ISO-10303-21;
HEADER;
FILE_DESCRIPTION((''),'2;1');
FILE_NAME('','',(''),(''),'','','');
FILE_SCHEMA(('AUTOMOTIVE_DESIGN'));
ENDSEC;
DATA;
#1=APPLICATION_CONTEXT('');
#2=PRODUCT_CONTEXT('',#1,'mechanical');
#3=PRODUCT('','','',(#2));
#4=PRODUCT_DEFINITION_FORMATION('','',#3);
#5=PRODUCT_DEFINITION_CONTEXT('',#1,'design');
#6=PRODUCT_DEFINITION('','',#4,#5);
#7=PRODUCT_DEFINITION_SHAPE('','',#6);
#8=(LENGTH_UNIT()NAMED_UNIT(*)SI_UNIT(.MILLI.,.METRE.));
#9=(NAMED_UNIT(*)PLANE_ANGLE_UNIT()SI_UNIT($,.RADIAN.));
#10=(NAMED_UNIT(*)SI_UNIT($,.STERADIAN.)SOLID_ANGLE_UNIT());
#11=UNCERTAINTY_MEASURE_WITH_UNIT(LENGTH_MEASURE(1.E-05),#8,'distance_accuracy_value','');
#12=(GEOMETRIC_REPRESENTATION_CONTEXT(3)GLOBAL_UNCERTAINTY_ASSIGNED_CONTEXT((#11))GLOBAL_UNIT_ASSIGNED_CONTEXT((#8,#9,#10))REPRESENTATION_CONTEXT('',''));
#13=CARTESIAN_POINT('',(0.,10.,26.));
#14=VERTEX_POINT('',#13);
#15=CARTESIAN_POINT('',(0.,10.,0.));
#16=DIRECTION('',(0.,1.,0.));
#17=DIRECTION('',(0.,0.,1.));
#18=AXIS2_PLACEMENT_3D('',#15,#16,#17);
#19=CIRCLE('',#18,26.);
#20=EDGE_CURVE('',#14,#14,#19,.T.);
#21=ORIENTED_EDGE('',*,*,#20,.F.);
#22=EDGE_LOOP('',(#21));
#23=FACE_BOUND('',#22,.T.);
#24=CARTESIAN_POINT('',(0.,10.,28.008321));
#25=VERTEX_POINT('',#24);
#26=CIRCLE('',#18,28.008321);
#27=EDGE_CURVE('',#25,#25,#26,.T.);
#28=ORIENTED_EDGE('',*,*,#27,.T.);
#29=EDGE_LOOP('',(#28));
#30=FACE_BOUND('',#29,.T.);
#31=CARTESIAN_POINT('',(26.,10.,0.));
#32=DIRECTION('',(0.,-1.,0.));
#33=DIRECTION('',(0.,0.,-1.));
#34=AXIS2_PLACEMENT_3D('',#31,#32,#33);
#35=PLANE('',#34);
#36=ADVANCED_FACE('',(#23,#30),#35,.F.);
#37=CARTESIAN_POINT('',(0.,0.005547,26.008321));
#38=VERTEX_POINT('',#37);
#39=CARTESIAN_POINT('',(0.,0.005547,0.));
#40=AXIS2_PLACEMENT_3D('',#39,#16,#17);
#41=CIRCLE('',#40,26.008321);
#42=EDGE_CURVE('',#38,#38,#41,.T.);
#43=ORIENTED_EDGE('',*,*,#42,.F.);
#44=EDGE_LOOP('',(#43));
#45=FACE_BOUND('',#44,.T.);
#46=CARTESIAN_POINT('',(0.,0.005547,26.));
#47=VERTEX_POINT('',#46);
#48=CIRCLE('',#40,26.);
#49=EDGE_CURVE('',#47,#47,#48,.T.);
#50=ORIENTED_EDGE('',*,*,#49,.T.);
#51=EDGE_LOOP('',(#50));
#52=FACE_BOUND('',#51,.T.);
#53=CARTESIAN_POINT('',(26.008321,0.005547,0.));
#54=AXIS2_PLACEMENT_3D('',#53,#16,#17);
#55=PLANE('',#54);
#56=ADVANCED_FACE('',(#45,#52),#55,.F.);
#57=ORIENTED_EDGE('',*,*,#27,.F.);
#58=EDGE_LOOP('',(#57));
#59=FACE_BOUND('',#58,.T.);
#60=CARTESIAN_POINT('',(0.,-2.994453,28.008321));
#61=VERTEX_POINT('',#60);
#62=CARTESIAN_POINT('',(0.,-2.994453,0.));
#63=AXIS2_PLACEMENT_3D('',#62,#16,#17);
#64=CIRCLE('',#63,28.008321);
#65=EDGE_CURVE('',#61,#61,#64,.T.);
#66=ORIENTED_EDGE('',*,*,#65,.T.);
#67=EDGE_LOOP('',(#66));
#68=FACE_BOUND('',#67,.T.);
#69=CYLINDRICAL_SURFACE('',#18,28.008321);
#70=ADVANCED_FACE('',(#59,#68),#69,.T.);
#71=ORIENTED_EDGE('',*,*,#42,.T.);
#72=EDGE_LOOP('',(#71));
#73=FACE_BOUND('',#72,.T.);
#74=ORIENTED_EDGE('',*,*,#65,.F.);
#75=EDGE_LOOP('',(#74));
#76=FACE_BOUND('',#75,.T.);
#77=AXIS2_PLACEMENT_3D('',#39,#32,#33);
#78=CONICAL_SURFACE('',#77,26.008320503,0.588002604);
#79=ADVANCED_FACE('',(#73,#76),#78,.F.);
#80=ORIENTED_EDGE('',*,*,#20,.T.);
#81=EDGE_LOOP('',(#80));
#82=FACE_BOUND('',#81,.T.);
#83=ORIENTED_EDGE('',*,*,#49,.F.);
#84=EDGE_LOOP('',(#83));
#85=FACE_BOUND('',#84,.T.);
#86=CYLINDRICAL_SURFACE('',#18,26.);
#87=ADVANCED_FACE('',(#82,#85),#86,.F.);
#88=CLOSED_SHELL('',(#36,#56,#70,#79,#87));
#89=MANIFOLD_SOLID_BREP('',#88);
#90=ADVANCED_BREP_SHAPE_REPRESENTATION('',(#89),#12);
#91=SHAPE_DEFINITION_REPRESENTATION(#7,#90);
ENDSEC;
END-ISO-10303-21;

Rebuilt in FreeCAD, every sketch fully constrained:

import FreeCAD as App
import Part
import Sketcher
from FreeCAD import Vector
Q = App.Units.Quantity


def add_polygon(sketch, points):
    """Adds a closed chain of lines whose ends are joined by coincident constraints."""
    first, n = sketch.GeometryCount, len(points)
    for a, b in zip(points, points[1:] + points[:1]):
        sketch.addGeometry(Part.LineSegment(App.Vector(*a, 0), App.Vector(*b, 0)), False)
    for i in range(n):
        sketch.addConstraint(Sketcher.Constraint("Coincident", first + i, 2, first + (i + 1) % n, 1))

doc = App.newDocument("Part")
body = doc.addObject("PartDesign::Body", "Body")

# Sketch on XY plane
sketch1 = body.newObject("Sketcher::SketchObject", "Sketch")
sketch1.AttachmentSupport = (doc.getObject("XY_Plane"), [""])
sketch1.MapMode = "FlatFace"
add_polygon(sketch1, [(26, 0.005547), (26.008321, 0.005547), (28.008321, -2.994453), (28.008321, 10), (26, 10)])  # lines 0-4
sketch1.addConstraint([
    Sketcher.Constraint("Horizontal", 0),
    Sketcher.Constraint("Vertical", 2),
    Sketcher.Constraint("Horizontal", 3),
    Sketcher.Constraint("Vertical", 4),
    Sketcher.Constraint("DistanceY", -1, 1, 2, 2, Q("10 mm")),
    Sketcher.Constraint("DistanceX", -1, 1, 3, 2, Q("26 mm")),
    Sketcher.Constraint("DistanceX", 0, 2, 1, 2, Q("2 mm")),
    Sketcher.Constraint("DistanceY", 1, 2, 0, 2, Q("3 mm")),
    Sketcher.Constraint("DistanceX", 0, 1, 0, 2, Q("0.008321 mm")),
    Sketcher.Constraint("DistanceY", 2, 1, 2, 2, Q("12.994453 mm")),
])
revolution = body.newObject("PartDesign::Revolution", "Revolution")
revolution.Profile = sketch1
revolution.ReferenceAxis = (sketch1, ["V_Axis"])
revolution.Angle = 360

doc.recompute()
